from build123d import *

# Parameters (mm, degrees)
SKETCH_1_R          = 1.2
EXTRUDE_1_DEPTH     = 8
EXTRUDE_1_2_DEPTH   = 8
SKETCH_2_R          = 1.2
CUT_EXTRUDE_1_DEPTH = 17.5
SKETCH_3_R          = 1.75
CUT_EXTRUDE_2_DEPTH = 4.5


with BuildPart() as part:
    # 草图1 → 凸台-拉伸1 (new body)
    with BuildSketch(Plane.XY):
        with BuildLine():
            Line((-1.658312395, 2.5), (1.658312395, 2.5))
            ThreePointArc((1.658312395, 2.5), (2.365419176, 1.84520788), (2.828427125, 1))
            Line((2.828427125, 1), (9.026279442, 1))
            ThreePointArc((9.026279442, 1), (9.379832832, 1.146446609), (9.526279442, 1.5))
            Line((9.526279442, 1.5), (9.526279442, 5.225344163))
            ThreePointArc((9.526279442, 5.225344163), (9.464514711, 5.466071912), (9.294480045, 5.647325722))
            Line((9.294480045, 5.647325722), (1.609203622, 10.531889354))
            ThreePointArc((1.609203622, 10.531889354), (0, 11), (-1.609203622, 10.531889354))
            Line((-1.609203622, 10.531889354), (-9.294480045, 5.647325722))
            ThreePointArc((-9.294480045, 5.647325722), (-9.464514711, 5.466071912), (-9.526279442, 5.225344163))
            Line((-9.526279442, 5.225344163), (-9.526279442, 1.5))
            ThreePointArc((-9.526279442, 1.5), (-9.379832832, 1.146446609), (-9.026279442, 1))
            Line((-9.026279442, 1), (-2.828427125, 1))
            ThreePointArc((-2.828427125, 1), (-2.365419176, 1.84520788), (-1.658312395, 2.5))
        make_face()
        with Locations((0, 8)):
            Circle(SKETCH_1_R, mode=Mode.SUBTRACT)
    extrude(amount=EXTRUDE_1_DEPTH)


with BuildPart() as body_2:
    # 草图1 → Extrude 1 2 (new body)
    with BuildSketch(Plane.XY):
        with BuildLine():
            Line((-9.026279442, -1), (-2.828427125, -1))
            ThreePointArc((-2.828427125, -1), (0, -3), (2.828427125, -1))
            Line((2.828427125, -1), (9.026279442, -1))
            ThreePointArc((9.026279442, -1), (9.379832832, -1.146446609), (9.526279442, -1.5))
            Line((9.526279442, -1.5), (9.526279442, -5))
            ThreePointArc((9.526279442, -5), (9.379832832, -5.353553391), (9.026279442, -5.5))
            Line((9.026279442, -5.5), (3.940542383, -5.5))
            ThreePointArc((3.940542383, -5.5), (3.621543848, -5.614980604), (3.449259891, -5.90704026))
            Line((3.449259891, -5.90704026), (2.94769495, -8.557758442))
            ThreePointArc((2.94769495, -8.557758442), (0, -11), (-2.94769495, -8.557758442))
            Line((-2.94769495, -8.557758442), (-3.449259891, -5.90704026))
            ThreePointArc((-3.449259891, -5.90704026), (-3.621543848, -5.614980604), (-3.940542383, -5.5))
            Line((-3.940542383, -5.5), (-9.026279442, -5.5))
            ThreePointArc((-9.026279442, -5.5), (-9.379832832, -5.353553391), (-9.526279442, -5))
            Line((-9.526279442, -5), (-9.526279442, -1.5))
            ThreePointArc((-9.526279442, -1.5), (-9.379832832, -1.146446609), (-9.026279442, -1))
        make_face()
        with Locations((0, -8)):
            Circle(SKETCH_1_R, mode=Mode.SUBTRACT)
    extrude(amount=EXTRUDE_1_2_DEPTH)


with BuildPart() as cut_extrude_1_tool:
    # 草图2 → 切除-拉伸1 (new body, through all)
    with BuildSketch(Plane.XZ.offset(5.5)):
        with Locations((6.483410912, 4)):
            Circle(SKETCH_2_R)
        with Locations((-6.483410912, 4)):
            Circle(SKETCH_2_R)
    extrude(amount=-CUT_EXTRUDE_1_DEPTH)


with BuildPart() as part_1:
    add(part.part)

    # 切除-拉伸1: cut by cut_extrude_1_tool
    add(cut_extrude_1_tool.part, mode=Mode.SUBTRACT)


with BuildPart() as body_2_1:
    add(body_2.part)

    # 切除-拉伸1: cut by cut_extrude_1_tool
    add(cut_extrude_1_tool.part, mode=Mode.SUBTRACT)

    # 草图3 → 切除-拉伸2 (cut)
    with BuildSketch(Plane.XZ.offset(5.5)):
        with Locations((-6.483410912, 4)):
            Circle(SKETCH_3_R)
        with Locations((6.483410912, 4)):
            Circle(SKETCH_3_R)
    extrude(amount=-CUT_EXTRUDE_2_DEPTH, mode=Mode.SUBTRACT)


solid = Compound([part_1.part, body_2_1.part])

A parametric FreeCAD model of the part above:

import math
import FreeCAD as App
import Part
import Sketcher
from FreeCAD import Vector

doc = App.newDocument("Part")
body = doc.addObject("PartDesign::Body", "Body")

# Sketch on XY plane
sketch1 = body.newObject("Sketcher::SketchObject", "Sketch")
sketch1.AttachmentSupport = (doc.getObject("XY_Plane"), [""])
sketch1.MapMode = "FlatFace"
sketch1.addGeometry([
    Part.LineSegment(Vector(-1.66, 2.5, 0), Vector(1.66, 2.5, 0)),  # 0
    Part.ArcOfCircle(Part.Circle(Vector(0, 0, 0), Vector(0, 0, 1), 3), math.radians(19), math.radians(56)),  # 1
    Part.LineSegment(Vector(2.83, 1, 0), Vector(9.03, 1, 0)),  # 2
    Part.ArcOfCircle(Part.Circle(Vector(9.03, 1.5, 0), Vector(0, 0, 1), 0.5), math.radians(-90), math.radians(0)),  # 3
    Part.LineSegment(Vector(9.53, 1.5, 0), Vector(9.53, 5.23, 0)),  # 4
    Part.ArcOfCircle(Part.Circle(Vector(9.03, 5.23, 0), Vector(0, 0, 1), 0.5), math.radians(0), math.radians(58)),  # 5
    Part.LineSegment(Vector(9.29, 5.65, 0), Vector(1.61, 10.53, 0)),  # 6
    Part.ArcOfCircle(Part.Circle(Vector(0, 8, 0), Vector(0, 0, 1), 3), math.radians(58), math.radians(122)),  # 7
    Part.LineSegment(Vector(-1.61, 10.53, 0), Vector(-9.29, 5.65, 0)),  # 8
    Part.ArcOfCircle(Part.Circle(Vector(-9.03, 5.23, 0), Vector(0, 0, 1), 0.5), math.radians(122), math.radians(180)),  # 9
    Part.LineSegment(Vector(-9.53, 5.23, 0), Vector(-9.53, 1.5, 0)),  # 10
    Part.ArcOfCircle(Part.Circle(Vector(-9.03, 1.5, 0), Vector(0, 0, 1), 0.5), math.radians(180), math.radians(270)),  # 11
    Part.LineSegment(Vector(-9.03, 1, 0), Vector(-2.83, 1, 0)),  # 12
    Part.ArcOfCircle(Part.Circle(Vector(0, 0, 0), Vector(0, 0, 1), 3), math.radians(124), math.radians(161)),  # 13
    Part.Circle(Vector(0, 8, 0), Vector(0, 0, 1), 1.2),  # 14
], False)
sketch1.addConstraint([
    Sketcher.Constraint("Coincident", 0, 2, 1, 2),
    Sketcher.Constraint("Coincident", 1, 1, 2, 1),
    Sketcher.Constraint("Tangent", 2, 2, 3, 1),
    Sketcher.Constraint("Tangent", 3, 2, 4, 1),
    Sketcher.Constraint("Tangent", 4, 2, 5, 1),
    Sketcher.Constraint("Tangent", 5, 2, 6, 1),
    Sketcher.Constraint("Tangent", 6, 2, 7, 1),
    Sketcher.Constraint("Tangent", 7, 2, 8, 1),
    Sketcher.Constraint("Tangent", 8, 2, 9, 1),
    Sketcher.Constraint("Tangent", 9, 2, 10, 1),
    Sketcher.Constraint("Tangent", 10, 2, 11, 1),
    Sketcher.Constraint("Tangent", 11, 2, 12, 1),
    Sketcher.Constraint("Coincident", 12, 2, 13, 2),
    Sketcher.Constraint("Coincident", 13, 1, 0, 1),
    Sketcher.Constraint("Horizontal", 0),
    Sketcher.Constraint("Horizontal", 2),
    Sketcher.Constraint("Vertical", 4),
    Sketcher.Constraint("Vertical", 10),
    Sketcher.Constraint("Horizontal", 12),
    Sketcher.Constraint("Coincident", 1, 3, -1, 1),
    Sketcher.Constraint("Coincident", 13, 3, -1, 1),
    Sketcher.Constraint("Coincident", 14, 3, 7, 3),
    Sketcher.Constraint("Equal", 3, 5),
    Sketcher.Constraint("Equal", 1, 7),
    Sketcher.Constraint("Equal", 5, 9),
    Sketcher.Constraint("Equal", 9, 11),
    Sketcher.Constraint("Equal", 7, 13),
    Sketcher.Constraint("Symmetric", 5, 3, 9, 3, -2),
    Sketcher.Constraint("PointOnObject", 7, 3, -2),
    Sketcher.Constraint("Horizontal", 3, 3, 11, 3),
    Sketcher.Constraint("Radius", 1, 3.0),
    Sketcher.Constraint("Diameter", 14, 2.4),
    Sketcher.Constraint("Radius", 3, 0.5),
    Sketcher.Constraint("DistanceY", -1, 1, 7, 3, 8.0),
    Sketcher.Constraint("DistanceY", -1, 1, 1, 1, 1.0),
    Sketcher.Constraint("DistanceY", 3, 3, 0, 2, 1.0),
    Sketcher.Constraint("DistanceX", 5, 2, 4, 2, 0.231799),
    Sketcher.Constraint("DistanceX", 2, 1, 2, 2, 6.197852),
])
pad1 = body.newObject("PartDesign::Pad", "Pad")
pad1.Profile = sketch1
pad1.Length = 8
body2 = doc.addObject("PartDesign::Body", "Body001")

# Sketch on XY plane
sketch2 = body2.newObject("Sketcher::SketchObject", "Sketch001")
sketch2.AttachmentSupport = (doc.getObject("XY_Plane001"), [""])
sketch2.MapMode = "FlatFace"
sketch2.addGeometry([
    Part.LineSegment(Vector(-2.83, -1, 0), Vector(-9.03, -1, 0)),  # 0
    Part.ArcOfCircle(Part.Circle(Vector(-9.03, -1.5, 0), Vector(0, 0, 1), 0.5), math.radians(90), math.radians(180)),  # 1
    Part.LineSegment(Vector(-9.53, -1.5, 0), Vector(-9.53, -5, 0)),  # 2
    Part.ArcOfCircle(Part.Circle(Vector(-9.03, -5, 0), Vector(0, 0, 1), 0.5), math.radians(180), math.radians(270)),  # 3
    Part.LineSegment(Vector(-9.03, -5.5, 0), Vector(-3.94, -5.5, 0)),  # 4
    Part.ArcOfCircle(Part.Circle(Vector(-3.94, -6, 0), Vector(0, 0, 1), 0.5), math.radians(11), math.radians(90)),  # 5
    Part.LineSegment(Vector(-3.45, -5.91, 0), Vector(-2.95, -8.56, 0)),  # 6
    Part.ArcOfCircle(Part.Circle(Vector(0, -8, 0), Vector(0, 0, 1), 3), math.radians(-169), math.radians(-11)),  # 7
    Part.LineSegment(Vector(2.95, -8.56, 0), Vector(3.45, -5.91, 0)),  # 8
    Part.ArcOfCircle(Part.Circle(Vector(3.94, -6, 0), Vector(0, 0, 1), 0.5), math.radians(90), math.radians(169)),  # 9
    Part.LineSegment(Vector(3.94, -5.5, 0), Vector(9.03, -5.5, 0)),  # 10
    Part.ArcOfCircle(Part.Circle(Vector(9.03, -5, 0), Vector(0, 0, 1), 0.5), math.radians(-90), math.radians(0)),  # 11
    Part.LineSegment(Vector(9.53, -5, 0), Vector(9.53, -1.5, 0)),  # 12
    Part.ArcOfCircle(Part.Circle(Vector(9.03, -1.5, 0), Vector(0, 0, 1), 0.5), math.radians(0), math.radians(90)),  # 13
    Part.LineSegment(Vector(9.03, -1, 0), Vector(2.83, -1, 0)),  # 14
    Part.ArcOfCircle(Part.Circle(Vector(0, 0, 0), Vector(0, 0, 1), 3), math.radians(-161), math.radians(-19)),  # 15
    Part.Circle(Vector(0, -8, 0), Vector(0, 0, 1), 1.2),  # 16
], False)
sketch2.addConstraint([
    Sketcher.Constraint("Tangent", 0, 2, 1, 1),
    Sketcher.Constraint("Tangent", 1, 2, 2, 1),
    Sketcher.Constraint("Tangent", 2, 2, 3, 1),
    Sketcher.Constraint("Tangent", 3, 2, 4, 1),
    Sketcher.Constraint("Tangent", 4, 2, 5, 2),
    Sketcher.Constraint("Tangent", 5, 1, 6, 1),
    Sketcher.Constraint("Tangent", 6, 2, 7, 1),
    Sketcher.Constraint("Tangent", 7, 2, 8, 1),
    Sketcher.Constraint("Tangent", 8, 2, 9, 2),
    Sketcher.Constraint("Tangent", 9, 1, 10, 1),
    Sketcher.Constraint("Tangent", 10, 2, 11, 1),
    Sketcher.Constraint("Tangent", 11, 2, 12, 1),
    Sketcher.Constraint("Tangent", 12, 2, 13, 1),
    Sketcher.Constraint("Tangent", 13, 2, 14, 1),
    Sketcher.Constraint("Coincident", 14, 2, 15, 2),
    Sketcher.Constraint("Coincident", 15, 1, 0, 1),
    Sketcher.Constraint("Horizontal", 0),
    Sketcher.Constraint("Vertical", 2),
    Sketcher.Constraint("Horizontal", 4),
    Sketcher.Constraint("Horizontal", 10),
    Sketcher.Constraint("Vertical", 12),
    Sketcher.Constraint("Horizontal", 14),
    Sketcher.Constraint("Coincident", 15, 3, -1, 1),
    Sketcher.Constraint("Coincident", 16, 3, 7, 3),
    Sketcher.Constraint("Equal", 1, 3),
    Sketcher.Constraint("Equal", 3, 5),
    Sketcher.Constraint("Equal", 5, 9),
    Sketcher.Constraint("Equal", 9, 11),
    Sketcher.Constraint("Equal", 11, 13),
    Sketcher.Constraint("Equal", 7, 15),
    Sketcher.Constraint("Symmetric", 5, 3, 9, 3, -2),
    Sketcher.Constraint("Symmetric", 1, 3, 13, 3, -2),
    Sketcher.Constraint("PointOnObject", 7, 3, -2),
    Sketcher.Constraint("Radius", 7, 3.0),
    Sketcher.Constraint("Diameter", 16, 2.4),
    Sketcher.Constraint("Radius", 1, 0.5),
    Sketcher.Constraint("DistanceY", 2, 2, 2, 1, 3.5),
    Sketcher.Constraint("DistanceY", 3, 3, -1, 1, 5.0),
    Sketcher.Constraint("DistanceY", 7, 3, -1, 1, 8.0),
    Sketcher.Constraint("DistanceX", 0, 2, 0, 1, 6.197852),
    Sketcher.Constraint("DistanceX", 4, 1, 4, 2, 5.085737),
])
pad2 = body2.newObject("PartDesign::Pad", "Pad001")
pad2.Profile = sketch2
pad2.Length = 8
body3 = doc.addObject("PartDesign::Body", "Body002")
body3.AllowCompound = True

# Sketch on XZ plane
sketch3 = body3.newObject("Sketcher::SketchObject", "Sketch002")
sketch3.AttachmentSupport = (doc.getObject("XZ_Plane002"), [""])
sketch3.MapMode = "FlatFace"
sketch3.AttachmentOffset = App.Placement(Vector(0, 0, 5.5), App.Rotation())
sketch3.addGeometry([
    Part.Circle(Vector(6.5, 4, 0), Vector(0, 0, 1), 1.2),
    Part.Circle(Vector(-6.5, 4, 0), Vector(0, 0, 1), 1.2),
], False)
sketch3.addConstraint([
    Sketcher.Constraint("Equal", 0, 1),
    Sketcher.Constraint("Symmetric", 0, 3, 1, 3, -2),
    Sketcher.Constraint("Diameter", 0, 2.4),
    Sketcher.Constraint("DistanceY", -1, 1, 0, 3, 4.0),
    Sketcher.Constraint("DistanceX", -1, 1, 0, 3, 6.483411),
])
pad3 = body3.newObject("PartDesign::Pad", "Pad002")
pad3.Profile = sketch3
pad3.Length = 17.5
pad3.Reversed = True
doc.recompute()

body4 = doc.addObject("PartDesign::Body", "Body003")
body4.BaseFeature = body3
boolean = body.newObject("PartDesign::Boolean", "Boolean")
boolean.Type = "Cut"
boolean.addObjects([body4])
doc.recompute()

boolean2 = body2.newObject("PartDesign::Boolean", "Boolean001")
boolean2.Type = "Cut"
boolean2.addObjects([body3])

# Sketch on XZ plane
sketch4 = body2.newObject("Sketcher::SketchObject", "Sketch003")
sketch4.AttachmentSupport = (doc.getObject("XZ_Plane001"), [""])
sketch4.MapMode = "FlatFace"
sketch4.AttachmentOffset = App.Placement(Vector(0, 0, 5.5), App.Rotation())
sketch4.addGeometry([
    Part.Circle(Vector(-6.5, 4, 0), Vector(0, 0, 1), 1.8),
    Part.Circle(Vector(6.5, 4, 0), Vector(0, 0, 1), 1.8),
], False)
sketch4.addConstraint([
    Sketcher.Constraint("Equal", 0, 1),
    Sketcher.Constraint("Symmetric", 0, 3, 1, 3, -2),
    Sketcher.Constraint("Diameter", 0, 3.5),
    Sketcher.Constraint("DistanceY", -1, 1, 0, 3, 4.0),
    Sketcher.Constraint("DistanceX", 0, 3, -1, 1, 6.483411),
])
pocket1 = body2.newObject("PartDesign::Pocket", "Pocket")
pocket1.Profile = sketch4
pocket1.Length = 4.5

doc.recompute()
